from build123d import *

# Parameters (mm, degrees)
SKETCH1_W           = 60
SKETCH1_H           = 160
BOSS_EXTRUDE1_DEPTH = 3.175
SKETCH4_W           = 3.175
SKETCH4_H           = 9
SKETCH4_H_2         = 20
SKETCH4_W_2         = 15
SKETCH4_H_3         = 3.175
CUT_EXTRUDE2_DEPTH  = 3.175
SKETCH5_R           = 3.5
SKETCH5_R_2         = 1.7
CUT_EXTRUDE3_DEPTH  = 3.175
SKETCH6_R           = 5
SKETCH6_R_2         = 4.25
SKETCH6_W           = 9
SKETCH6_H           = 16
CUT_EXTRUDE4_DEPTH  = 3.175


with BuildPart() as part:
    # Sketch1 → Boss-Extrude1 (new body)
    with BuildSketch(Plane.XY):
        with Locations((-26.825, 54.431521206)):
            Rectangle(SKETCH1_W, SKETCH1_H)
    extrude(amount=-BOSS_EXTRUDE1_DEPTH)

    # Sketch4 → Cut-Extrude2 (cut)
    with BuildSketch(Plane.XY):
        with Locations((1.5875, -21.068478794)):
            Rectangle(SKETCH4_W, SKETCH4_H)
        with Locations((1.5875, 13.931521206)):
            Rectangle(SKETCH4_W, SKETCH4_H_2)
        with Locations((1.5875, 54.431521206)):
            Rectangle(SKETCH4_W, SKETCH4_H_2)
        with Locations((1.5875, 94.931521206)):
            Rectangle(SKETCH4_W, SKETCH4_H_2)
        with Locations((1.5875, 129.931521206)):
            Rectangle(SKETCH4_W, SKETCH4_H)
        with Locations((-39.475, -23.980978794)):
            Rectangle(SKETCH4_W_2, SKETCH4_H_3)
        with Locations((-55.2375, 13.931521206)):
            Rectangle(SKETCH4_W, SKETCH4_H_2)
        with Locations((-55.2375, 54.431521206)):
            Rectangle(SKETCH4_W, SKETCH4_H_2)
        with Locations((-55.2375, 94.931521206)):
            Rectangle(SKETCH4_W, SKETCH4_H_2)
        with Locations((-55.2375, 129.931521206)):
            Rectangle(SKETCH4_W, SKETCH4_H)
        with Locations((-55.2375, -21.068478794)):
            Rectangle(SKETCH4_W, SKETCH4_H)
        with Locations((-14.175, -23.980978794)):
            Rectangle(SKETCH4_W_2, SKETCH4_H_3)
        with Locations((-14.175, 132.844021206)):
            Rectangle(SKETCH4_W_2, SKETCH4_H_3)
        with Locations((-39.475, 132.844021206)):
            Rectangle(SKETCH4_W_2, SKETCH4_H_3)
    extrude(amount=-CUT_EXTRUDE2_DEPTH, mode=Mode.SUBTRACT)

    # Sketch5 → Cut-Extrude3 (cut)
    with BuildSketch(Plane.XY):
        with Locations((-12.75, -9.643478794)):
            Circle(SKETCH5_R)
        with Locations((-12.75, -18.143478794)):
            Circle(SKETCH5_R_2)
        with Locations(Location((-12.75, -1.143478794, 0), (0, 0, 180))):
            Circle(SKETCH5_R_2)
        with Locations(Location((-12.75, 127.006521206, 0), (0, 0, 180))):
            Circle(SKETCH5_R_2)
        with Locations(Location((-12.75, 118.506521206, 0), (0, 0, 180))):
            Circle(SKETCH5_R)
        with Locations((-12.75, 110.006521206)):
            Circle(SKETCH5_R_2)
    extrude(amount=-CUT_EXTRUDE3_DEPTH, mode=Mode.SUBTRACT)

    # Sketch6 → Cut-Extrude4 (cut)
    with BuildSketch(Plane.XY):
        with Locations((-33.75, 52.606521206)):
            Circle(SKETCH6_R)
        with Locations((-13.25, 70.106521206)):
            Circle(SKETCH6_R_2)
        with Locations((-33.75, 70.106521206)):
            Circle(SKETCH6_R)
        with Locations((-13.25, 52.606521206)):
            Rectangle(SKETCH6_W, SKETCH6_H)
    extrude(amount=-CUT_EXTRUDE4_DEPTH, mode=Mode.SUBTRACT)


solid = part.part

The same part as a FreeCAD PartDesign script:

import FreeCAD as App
import Part
import Sketcher
from FreeCAD import Vector

doc = App.newDocument("Part")
body = doc.addObject("PartDesign::Body", "Body")

# Sketch on XY plane
sketch1 = doc.addObject("Sketcher::SketchObject", "Sketch")
body.addObject(sketch1)
sketch1.AttachmentSupport = (doc.XY_Plane, [""])
sketch1.MapMode = "FlatFace"
sketch1.addGeometry(Part.LineSegment(Vector(-57, 134, 0), Vector(-57, -26, 0)), False)
sketch1.addGeometry(Part.LineSegment(Vector(-57, -26, 0), Vector(3, -26, 0)), False)
sketch1.addGeometry(Part.LineSegment(Vector(3, -26, 0), Vector(3, 134, 0)), False)
sketch1.addGeometry(Part.LineSegment(Vector(3, 134, 0), Vector(-57, 134, 0)), False)
sketch1.addConstraint(Sketcher.Constraint("Coincident", 0, 2, 1, 1))
sketch1.addConstraint(Sketcher.Constraint("Coincident", 1, 2, 2, 1))
sketch1.addConstraint(Sketcher.Constraint("Coincident", 2, 2, 3, 1))
sketch1.addConstraint(Sketcher.Constraint("Coincident", 3, 2, 0, 1))
sketch1.addConstraint(Sketcher.Constraint("Vertical", 0))
sketch1.addConstraint(Sketcher.Constraint("Horizontal", 1))
sketch1.addConstraint(Sketcher.Constraint("Vertical", 2))
sketch1.addConstraint(Sketcher.Constraint("Horizontal", 3))
sketch1.addConstraint(Sketcher.Constraint("DistanceX", 1, 1, 1, 2, 60.0))
sketch1.addConstraint(Sketcher.Constraint("DistanceY", 0, 2, 0, 1, 160.0))
sketch1.addConstraint(Sketcher.Constraint("DistanceX", 0, 2, -1, 1, 56.825))
sketch1.addConstraint(Sketcher.Constraint("DistanceY", 0, 2, -1, 1, 25.568479))
pad1 = doc.addObject("PartDesign::Pad", "Pad")
body.addObject(pad1)
pad1.Profile = sketch1
pad1.Length = 3.175
pad1.Reversed = True

# Sketch on XY plane
sketch2 = doc.addObject("Sketcher::SketchObject", "Sketch001")
body.addObject(sketch2)
sketch2.AttachmentSupport = (doc.XY_Plane, [""])
sketch2.MapMode = "FlatFace"
sketch2.addGeometry(Part.LineSegment(Vector(0, -16.6, 0), Vector(0, -25.6, 0)), False)
sketch2.addGeometry(Part.LineSegment(Vector(0, -25.6, 0), Vector(3.2, -25.6, 0)), False)
sketch2.addGeometry(Part.LineSegment(Vector(3.2, -25.6, 0), Vector(3.2, -16.6, 0)), False)
sketch2.addGeometry(Part.LineSegment(Vector(3.2, -16.6, 0), Vector(0, -16.6, 0)), False)
sketch2.addGeometry(Part.LineSegment(Vector(0, 23.9, 0), Vector(0, 3.9, 0)), False)
sketch2.addGeometry(Part.LineSegment(Vector(0, 3.9, 0), Vector(3.2, 3.9, 0)), False)
sketch2.addGeometry(Part.LineSegment(Vector(3.2, 3.9, 0), Vector(3.2, 23.9, 0)), False)
sketch2.addGeometry(Part.LineSegment(Vector(3.2, 23.9, 0), Vector(0, 23.9, 0)), False)
sketch2.addGeometry(Part.LineSegment(Vector(0, 64.4, 0), Vector(0, 44.4, 0)), False)
sketch2.addGeometry(Part.LineSegment(Vector(0, 44.4, 0), Vector(3.2, 44.4, 0)), False)
sketch2.addGeometry(Part.LineSegment(Vector(3.2, 44.4, 0), Vector(3.2, 64.4, 0)), False)
sketch2.addGeometry(Part.LineSegment(Vector(3.2, 64.4, 0), Vector(0, 64.4, 0)), False)
sketch2.addGeometry(Part.LineSegment(Vector(0, 104.9, 0), Vector(0, 84.9, 0)), False)
sketch2.addGeometry(Part.LineSegment(Vector(0, 84.9, 0), Vector(3.2, 84.9, 0)), False)
sketch2.addGeometry(Part.LineSegment(Vector(3.2, 84.9, 0), Vector(3.2, 104.9, 0)), False)
sketch2.addGeometry(Part.LineSegment(Vector(3.2, 104.9, 0), Vector(0, 104.9, 0)), False)
sketch2.addGeometry(Part.LineSegment(Vector(0, 134.4, 0), Vector(0, 125.4, 0)), False)
sketch2.addGeometry(Part.LineSegment(Vector(0, 125.4, 0), Vector(3.2, 125.4, 0)), False)
sketch2.addGeometry(Part.LineSegment(Vector(3.2, 125.4, 0), Vector(3.2, 134.4, 0)), False)
sketch2.addGeometry(Part.LineSegment(Vector(3.2, 134.4, 0), Vector(0, 134.4, 0)), False)
sketch2.addGeometry(Part.LineSegment(Vector(-47, -22.4, 0), Vector(-47, -25.6, 0)), False)
sketch2.addGeometry(Part.LineSegment(Vector(-47, -25.6, 0), Vector(-32, -25.6, 0)), False)
sketch2.addGeometry(Part.LineSegment(Vector(-32, -25.6, 0), Vector(-32, -22.4, 0)), False)
sketch2.addGeometry(Part.LineSegment(Vector(-32, -22.4, 0), Vector(-47, -22.4, 0)), False)
sketch2.addGeometry(Part.LineSegment(Vector(-56.8, 23.9, 0), Vector(-56.8, 3.9, 0)), False)
sketch2.addGeometry(Part.LineSegment(Vector(-56.8, 3.9, 0), Vector(-53.6, 3.9, 0)), False)
sketch2.addGeometry(Part.LineSegment(Vector(-53.6, 3.9, 0), Vector(-53.6, 23.9, 0)), False)
sketch2.addGeometry(Part.LineSegment(Vector(-53.6, 23.9, 0), Vector(-56.8, 23.9, 0)), False)
sketch2.addGeometry(Part.LineSegment(Vector(-56.8, 64.4, 0), Vector(-56.8, 44.4, 0)), False)
sketch2.addGeometry(Part.LineSegment(Vector(-56.8, 44.4, 0), Vector(-53.6, 44.4, 0)), False)
sketch2.addGeometry(Part.LineSegment(Vector(-53.6, 44.4, 0), Vector(-53.6, 64.4, 0)), False)
sketch2.addGeometry(Part.LineSegment(Vector(-53.6, 64.4, 0), Vector(-56.8, 64.4, 0)), False)
sketch2.addGeometry(Part.LineSegment(Vector(-56.8, 104.9, 0), Vector(-56.8, 84.9, 0)), False)
sketch2.addGeometry(Part.LineSegment(Vector(-56.8, 84.9, 0), Vector(-53.6, 84.9, 0)), False)
sketch2.addGeometry(Part.LineSegment(Vector(-53.6, 84.9, 0), Vector(-53.6, 104.9, 0)), False)
sketch2.addGeometry(Part.LineSegment(Vector(-53.6, 104.9, 0), Vector(-56.8, 104.9, 0)), False)
sketch2.addGeometry(Part.LineSegment(Vector(-56.8, 134.4, 0), Vector(-56.8, 125.4, 0)), False)
sketch2.addGeometry(Part.LineSegment(Vector(-56.8, 125.4, 0), Vector(-53.6, 125.4, 0)), False)
sketch2.addGeometry(Part.LineSegment(Vector(-53.6, 125.4, 0), Vector(-53.6, 134.4, 0)), False)
sketch2.addGeometry(Part.LineSegment(Vector(-53.6, 134.4, 0), Vector(-56.8, 134.4, 0)), False)
sketch2.addGeometry(Part.LineSegment(Vector(-56.8, -16.6, 0), Vector(-56.8, -25.6, 0)), False)
sketch2.addGeometry(Part.LineSegment(Vector(-56.8, -25.6, 0), Vector(-53.6, -25.6, 0)), False)
sketch2.addGeometry(Part.LineSegment(Vector(-53.6, -25.6, 0), Vector(-53.6, -16.6, 0)), False)
sketch2.addGeometry(Part.LineSegment(Vector(-53.6, -16.6, 0), Vector(-56.8, -16.6, 0)), False)
sketch2.addGeometry(Part.LineSegment(Vector(-21.7, -22.4, 0), Vector(-21.7, -25.6, 0)), False)
sketch2.addGeometry(Part.LineSegment(Vector(-21.7, -25.6, 0), Vector(-6.7, -25.6, 0)), False)
sketch2.addGeometry(Part.LineSegment(Vector(-6.7, -25.6, 0), Vector(-6.7, -22.4, 0)), False)
sketch2.addGeometry(Part.LineSegment(Vector(-6.7, -22.4, 0), Vector(-21.7, -22.4, 0)), False)
sketch2.addGeometry(Part.LineSegment(Vector(-21.7, 134.4, 0), Vector(-21.7, 131.3, 0)), False)
sketch2.addGeometry(Part.LineSegment(Vector(-21.7, 131.3, 0), Vector(-6.7, 131.3, 0)), False)
sketch2.addGeometry(Part.LineSegment(Vector(-6.7, 131.3, 0), Vector(-6.7, 134.4, 0)), False)
sketch2.addGeometry(Part.LineSegment(Vector(-6.7, 134.4, 0), Vector(-21.7, 134.4, 0)), False)
sketch2.addGeometry(Part.LineSegment(Vector(-47, 134.4, 0), Vector(-47, 131.3, 0)), False)
sketch2.addGeometry(Part.LineSegment(Vector(-47, 131.3, 0), Vector(-32, 131.3, 0)), False)
sketch2.addGeometry(Part.LineSegment(Vector(-32, 131.3, 0), Vector(-32, 134.4, 0)), False)
sketch2.addGeometry(Part.LineSegment(Vector(-32, 134.4, 0), Vector(-47, 134.4, 0)), False)
sketch2.addConstraint(Sketcher.Constraint("Coincident", 0, 2, 1, 1))
sketch2.addConstraint(Sketcher.Constraint("Coincident", 1, 2, 2, 1))
sketch2.addConstraint(Sketcher.Constraint("Coincident", 2, 2, 3, 1))
sketch2.addConstraint(Sketcher.Constraint("Coincident", 3, 2, 0, 1))
sketch2.addConstraint(Sketcher.Constraint("Coincident", 4, 2, 5, 1))
sketch2.addConstraint(Sketcher.Constraint("Coincident", 5, 2, 6, 1))
sketch2.addConstraint(Sketcher.Constraint("Coincident", 6, 2, 7, 1))
sketch2.addConstraint(Sketcher.Constraint("Coincident", 7, 2, 4, 1))
sketch2.addConstraint(Sketcher.Constraint("Coincident", 8, 2, 9, 1))
sketch2.addConstraint(Sketcher.Constraint("Coincident", 9, 2, 10, 1))
sketch2.addConstraint(Sketcher.Constraint("Coincident", 10, 2, 11, 1))
sketch2.addConstraint(Sketcher.Constraint("Coincident", 11, 2, 8, 1))
sketch2.addConstraint(Sketcher.Constraint("Coincident", 12, 2, 13, 1))
sketch2.addConstraint(Sketcher.Constraint("Coincident", 13, 2, 14, 1))
sketch2.addConstraint(Sketcher.Constraint("Coincident", 14, 2, 15, 1))
sketch2.addConstraint(Sketcher.Constraint("Coincident", 15, 2, 12, 1))
sketch2.addConstraint(Sketcher.Constraint("Coincident", 16, 2, 17, 1))
sketch2.addConstraint(Sketcher.Constraint("Coincident", 17, 2, 18, 1))
sketch2.addConstraint(Sketcher.Constraint("Coincident", 18, 2, 19, 1))
sketch2.addConstraint(Sketcher.Constraint("Coincident", 19, 2, 16, 1))
sketch2.addConstraint(Sketcher.Constraint("Coincident", 20, 2, 21, 1))
sketch2.addConstraint(Sketcher.Constraint("Coincident", 21, 2, 22, 1))
sketch2.addConstraint(Sketcher.Constraint("Coincident", 22, 2, 23, 1))
sketch2.addConstraint(Sketcher.Constraint("Coincident", 23, 2, 20, 1))
sketch2.addConstraint(Sketcher.Constraint("Coincident", 24, 2, 25, 1))
sketch2.addConstraint(Sketcher.Constraint("Coincident", 25, 2, 26, 1))
sketch2.addConstraint(Sketcher.Constraint("Coincident", 26, 2, 27, 1))
sketch2.addConstraint(Sketcher.Constraint("Coincident", 27, 2, 24, 1))
sketch2.addConstraint(Sketcher.Constraint("Coincident", 28, 2, 29, 1))
sketch2.addConstraint(Sketcher.Constraint("Coincident", 29, 2, 30, 1))
sketch2.addConstraint(Sketcher.Constraint("Coincident", 30, 2, 31, 1))
sketch2.addConstraint(Sketcher.Constraint("Coincident", 31, 2, 28, 1))
sketch2.addConstraint(Sketcher.Constraint("Coincident", 32, 2, 33, 1))
sketch2.addConstraint(Sketcher.Constraint("Coincident", 33, 2, 34, 1))
sketch2.addConstraint(Sketcher.Constraint("Coincident", 34, 2, 35, 1))
sketch2.addConstraint(Sketcher.Constraint("Coincident", 35, 2, 32, 1))
sketch2.addConstraint(Sketcher.Constraint("Coincident", 36, 2, 37, 1))
sketch2.addConstraint(Sketcher.Constraint("Coincident", 37, 2, 38, 1))
sketch2.addConstraint(Sketcher.Constraint("Coincident", 38, 2, 39, 1))
sketch2.addConstraint(Sketcher.Constraint("Coincident", 39, 2, 36, 1))
sketch2.addConstraint(Sketcher.Constraint("Coincident", 40, 2, 41, 1))
sketch2.addConstraint(Sketcher.Constraint("Coincident", 41, 2, 42, 1))
sketch2.addConstraint(Sketcher.Constraint("Coincident", 42, 2, 43, 1))
sketch2.addConstraint(Sketcher.Constraint("Coincident", 43, 2, 40, 1))
sketch2.addConstraint(Sketcher.Constraint("Coincident", 44, 2, 45, 1))
sketch2.addConstraint(Sketcher.Constraint("Coincident", 45, 2, 46, 1))
sketch2.addConstraint(Sketcher.Constraint("Coincident", 46, 2, 47, 1))
sketch2.addConstraint(Sketcher.Constraint("Coincident", 47, 2, 44, 1))
sketch2.addConstraint(Sketcher.Constraint("Coincident", 48, 2, 49, 1))
sketch2.addConstraint(Sketcher.Constraint("Coincident", 49, 2, 50, 1))
sketch2.addConstraint(Sketcher.Constraint("Coincident", 50, 2, 51, 1))
sketch2.addConstraint(Sketcher.Constraint("Coincident", 51, 2, 48, 1))
sketch2.addConstraint(Sketcher.Constraint("Coincident", 52, 2, 53, 1))
sketch2.addConstraint(Sketcher.Constraint("Coincident", 53, 2, 54, 1))
sketch2.addConstraint(Sketcher.Constraint("Coincident", 54, 2, 55, 1))
sketch2.addConstraint(Sketcher.Constraint("Coincident", 55, 2, 52, 1))
sketch2.addConstraint(Sketcher.Constraint("Vertical", 0))
sketch2.addConstraint(Sketcher.Constraint("Horizontal", 1))
sketch2.addConstraint(Sketcher.Constraint("Vertical", 2))
sketch2.addConstraint(Sketcher.Constraint("Horizontal", 3))
sketch2.addConstraint(Sketcher.Constraint("Vertical", 4))
sketch2.addConstraint(Sketcher.Constraint("Horizontal", 5))
sketch2.addConstraint(Sketcher.Constraint("Vertical", 6))
sketch2.addConstraint(Sketcher.Constraint("Horizontal", 7))
sketch2.addConstraint(Sketcher.Constraint("Vertical", 8))
sketch2.addConstraint(Sketcher.Constraint("Horizontal", 9))
sketch2.addConstraint(Sketcher.Constraint("Vertical", 10))
sketch2.addConstraint(Sketcher.Constraint("Horizontal", 11))
sketch2.addConstraint(Sketcher.Constraint("Vertical", 12))
sketch2.addConstraint(Sketcher.Constraint("Horizontal", 13))
sketch2.addConstraint(Sketcher.Constraint("Vertical", 14))
sketch2.addConstraint(Sketcher.Constraint("Horizontal", 15))
sketch2.addConstraint(Sketcher.Constraint("Vertical", 16))
sketch2.addConstraint(Sketcher.Constraint("Horizontal", 17))
sketch2.addConstraint(Sketcher.Constraint("Vertical", 18))
sketch2.addConstraint(Sketcher.Constraint("Horizontal", 19))
sketch2.addConstraint(Sketcher.Constraint("Vertical", 20))
sketch2.addConstraint(Sketcher.Constraint("Horizontal", 21))
sketch2.addConstraint(Sketcher.Constraint("Vertical", 22))
sketch2.addConstraint(Sketcher.Constraint("Horizontal", 23))
sketch2.addConstraint(Sketcher.Constraint("Vertical", 24))
sketch2.addConstraint(Sketcher.Constraint("Horizontal", 25))
sketch2.addConstraint(Sketcher.Constraint("Vertical", 26))
sketch2.addConstraint(Sketcher.Constraint("Horizontal", 27))
sketch2.addConstraint(Sketcher.Constraint("Vertical", 28))
sketch2.addConstraint(Sketcher.Constraint("Horizontal", 29))
sketch2.addConstraint(Sketcher.Constraint("Vertical", 30))
sketch2.addConstraint(Sketcher.Constraint("Horizontal", 31))
sketch2.addConstraint(Sketcher.Constraint("Vertical", 32))
sketch2.addConstraint(Sketcher.Constraint("Horizontal", 33))
sketch2.addConstraint(Sketcher.Constraint("Vertical", 34))
sketch2.addConstraint(Sketcher.Constraint("Horizontal", 35))
sketch2.addConstraint(Sketcher.Constraint("Vertical", 36))
sketch2.addConstraint(Sketcher.Constraint("Horizontal", 37))
sketch2.addConstraint(Sketcher.Constraint("Vertical", 38))
sketch2.addConstraint(Sketcher.Constraint("Horizontal", 39))
sketch2.addConstraint(Sketcher.Constraint("Vertical", 40))
sketch2.addConstraint(Sketcher.Constraint("Horizontal", 41))
sketch2.addConstraint(Sketcher.Constraint("Vertical", 42))
sketch2.addConstraint(Sketcher.Constraint("Horizontal", 43))
sketch2.addConstraint(Sketcher.Constraint("Vertical", 44))
sketch2.addConstraint(Sketcher.Constraint("Horizontal", 45))
sketch2.addConstraint(Sketcher.Constraint("Vertical", 46))
sketch2.addConstraint(Sketcher.Constraint("Horizontal", 47))
sketch2.addConstraint(Sketcher.Constraint("Vertical", 48))
sketch2.addConstraint(Sketcher.Constraint("Horizontal", 49))
sketch2.addConstraint(Sketcher.Constraint("Vertical", 50))
sketch2.addConstraint(Sketcher.Constraint("Horizontal", 51))
sketch2.addConstraint(Sketcher.Constraint("Vertical", 52))
sketch2.addConstraint(Sketcher.Constraint("Horizontal", 53))
sketch2.addConstraint(Sketcher.Constraint("Vertical", 54))
sketch2.addConstraint(Sketcher.Constraint("Horizontal", 55))
sketch2.addConstraint(Sketcher.Constraint("PointOnObject", 0, 2, -2))
sketch2.addConstraint(Sketcher.Constraint("PointOnObject", 4, 2, -2))
sketch2.addConstraint(Sketcher.Constraint("PointOnObject", 8, 2, -2))
sketch2.addConstraint(Sketcher.Constraint("PointOnObject", 12, 2, -2))
sketch2.addConstraint(Sketcher.Constraint("PointOnObject", 16, 2, -2))
sketch2.addConstraint(Sketcher.Constraint("Horizontal", 1, 2, 20, 2))
sketch2.addConstraint(Sketcher.Constraint("Horizontal", 5, 2, 24, 2))
sketch2.addConstraint(Sketcher.Constraint("Horizontal", 7, 2, 26, 2))
sketch2.addConstraint(Sketcher.Constraint("Horizontal", 9, 2, 28, 2))
sketch2.addConstraint(Sketcher.Constraint("Horizontal", 11, 2, 30, 2))
sketch2.addConstraint(Sketcher.Constraint("Horizontal", 13, 2, 32, 2))
sketch2.addConstraint(Sketcher.Constraint("Horizontal", 15, 2, 34, 2))
sketch2.addConstraint(Sketcher.Constraint("Horizontal", 17, 2, 36, 2))
sketch2.addConstraint(Sketcher.Constraint("Horizontal", 19, 2, 38, 2))
sketch2.addConstraint(Sketcher.Constraint("Horizontal", 21, 2, 40, 2))
sketch2.addConstraint(Sketcher.Constraint("Horizontal", 3, 2, 42, 2))
sketch2.addConstraint(Sketcher.Constraint("Horizontal", 41, 2, 44, 2))
sketch2.addConstraint(Sketcher.Constraint("Horizontal", 23, 2, 46, 2))
sketch2.addConstraint(Sketcher.Constraint("Horizontal", 39, 2, 50, 2))
sketch2.addConstraint(Sketcher.Constraint("Horizontal", 49, 2, 52, 2))
sketch2.addConstraint(Sketcher.Constraint("Horizontal", 51, 2, 54, 2))
sketch2.addConstraint(Sketcher.Constraint("Vertical", 2, 2, 5, 2))
sketch2.addConstraint(Sketcher.Constraint("Vertical", 6, 2, 9, 2))
sketch2.addConstraint(Sketcher.Constraint("Vertical", 10, 2, 13, 2))
sketch2.addConstraint(Sketcher.Constraint("Vertical", 14, 2, 17, 2))
sketch2.addConstraint(Sketcher.Constraint("Vertical", 27, 2, 28, 2))
sketch2.addConstraint(Sketcher.Constraint("Vertical", 26, 2, 29, 2))
sketch2.addConstraint(Sketcher.Constraint("Vertical", 31, 2, 32, 2))
sketch2.addConstraint(Sketcher.Constraint("Vertical", 30, 2, 33, 2))
sketch2.addConstraint(Sketcher.Constraint("Vertical", 35, 2, 36, 2))
sketch2.addConstraint(Sketcher.Constraint("Vertical", 34, 2, 37, 2))
sketch2.addConstraint(Sketcher.Constraint("Vertical", 39, 2, 40, 2))
sketch2.addConstraint(Sketcher.Constraint("Vertical", 38, 2, 41, 2))
sketch2.addConstraint(Sketcher.Constraint("Vertical", 47, 2, 48, 2))
sketch2.addConstraint(Sketcher.Constraint("Vertical", 46, 2, 49, 2))
sketch2.addConstraint(Sketcher.Constraint("Vertical", 23, 2, 52, 2))
sketch2.addConstraint(Sketcher.Constraint("Vertical", 22, 2, 53, 2))
sketch2.addConstraint(Sketcher.Constraint("Equal", 19, 25))
sketch2.addConstraint(Sketcher.Constraint("Equal", 23, 45))
sketch2.addConstraint(Sketcher.Constraint("Equal", 6, 8))
sketch2.addConstraint(Sketcher.Constraint("Equal", 10, 12))
sketch2.addConstraint(Sketcher.Constraint("Equal", 2, 16))
sketch2.addConstraint(Sketcher.Constraint("Equal", 43, 20))
sketch2.addConstraint(Sketcher.Constraint("Equal", 46, 48))
sketch2.addConstraint(Sketcher.Constraint("DistanceX", 21, 1, 21, 2, 15.0))
sketch2.addConstraint(Sketcher.Constraint("DistanceY", 0, 2, 0, 1, 9.0))
sketch2.addConstraint(Sketcher.Constraint("DistanceY", 4, 2, 4, 1, 20.0))
sketch2.addConstraint(Sketcher.Constraint("DistanceY", 3, 2, 8, 2, 61.0))
sketch2.addConstraint(Sketcher.Constraint("DistanceY", 7, 2, 12, 2, 61.0))
sketch2.addConstraint(Sketcher.Constraint("DistanceY", 11, 2, 16, 2, 61.0))
sketch2.addConstraint(Sketcher.Constraint("DistanceY", 3, 2, 4, 2, 20.5))
sketch2.addConstraint(Sketcher.Constraint("DistanceX", 21, 2, 44, 2, 10.3))
sketch2.addConstraint(Sketcher.Constraint("DistanceX", 1, 1, 1, 2, 3.175))
sketch2.addConstraint(Sketcher.Constraint("DistanceX", 25, 2, -1, 1, 53.65))
sketch2.addConstraint(Sketcher.Constraint("DistanceX", 20, 2, 1, 2, 50.15))
sketch2.addConstraint(Sketcher.Constraint("DistanceY", 0, 2, -1, 1, 25.568479))
pocket1 = doc.addObject("PartDesign::Pocket", "Pocket")
body.addObject(pocket1)
pocket1.Profile = sketch2
pocket1.Length = 3.175

# Sketch on XY plane
sketch3 = doc.addObject("Sketcher::SketchObject", "Sketch002")
body.addObject(sketch3)
sketch3.AttachmentSupport = (doc.XY_Plane, [""])
sketch3.MapMode = "FlatFace"
sketch3.addGeometry(Part.Circle(Vector(-12.8, -9.6, 0), Vector(0, 0, 1), 3.5), False)
sketch3.addGeometry(Part.Circle(Vector(-12.8, -18.1, 0), Vector(0, 0, 1), 1.7), False)
sketch3.addGeometry(Part.Circle(Vector(-12.8, -1.1, 0), Vector(0, 0, 1), 1.7), False)
sketch3.addGeometry(Part.Circle(Vector(-12.8, 127, 0), Vector(0, 0, 1), 1.7), False)
sketch3.addGeometry(Part.Circle(Vector(-12.8, 118.5, 0), Vector(0, 0, 1), 3.5), False)
sketch3.addGeometry(Part.Circle(Vector(-12.8, 110, 0), Vector(0, 0, 1), 1.7), False)
sketch3.addConstraint(Sketcher.Constraint("Equal", 1, 2))
sketch3.addConstraint(Sketcher.Constraint("Equal", 2, 3))
sketch3.addConstraint(Sketcher.Constraint("Equal", 0, 4))
sketch3.addConstraint(Sketcher.Constraint("Equal", 3, 5))
sketch3.addConstraint(Sketcher.Constraint("Vertical", 0, 3, 1, 3))
sketch3.addConstraint(Sketcher.Constraint("Vertical", 1, 3, 2, 3))
sketch3.addConstraint(Sketcher.Constraint("Vertical", 2, 3, 3, 3))
sketch3.addConstraint(Sketcher.Constraint("Vertical", 3, 3, 4, 3))
sketch3.addConstraint(Sketcher.Constraint("Vertical", 4, 3, 5, 3))
sketch3.addConstraint(Sketcher.Constraint("Diameter", 0, 7.0))
sketch3.addConstraint(Sketcher.Constraint("Diameter", 1, 3.4))
sketch3.addConstraint(Sketcher.Constraint("DistanceY", 1, 3, 2, 3, 17.0))
sketch3.addConstraint(Sketcher.Constraint("DistanceY", 5, 3, 3, 3, 17.0))
sketch3.addConstraint(Sketcher.Constraint("DistanceY", 1, 3, 0, 3, 8.5))
sketch3.addConstraint(Sketcher.Constraint("DistanceY", 4, 3, 3, 3, 8.5))
sketch3.addConstraint(Sketcher.Constraint("DistanceX", 0, 3, -1, 1, 12.75))
sketch3.addConstraint(Sketcher.Constraint("DistanceY", 2, 3, 3, 3, 128.15))
sketch3.addConstraint(Sketcher.Constraint("DistanceY", 0, 3, -1, 1, 9.643479))
pocket2 = doc.addObject("PartDesign::Pocket", "Pocket001")
body.addObject(pocket2)
pocket2.Profile = sketch3
pocket2.Length = 3.175

# Sketch on XY plane
sketch4 = doc.addObject("Sketcher::SketchObject", "Sketch003")
body.addObject(sketch4)
sketch4.AttachmentSupport = (doc.XY_Plane, [""])
sketch4.MapMode = "FlatFace"
sketch4.addGeometry(Part.Circle(Vector(-33.8, 52.6, 0), Vector(0, 0, 1), 5), False)
sketch4.addGeometry(Part.Circle(Vector(-13.2, 70.1, 0), Vector(0, 0, 1), 4.2), False)
sketch4.addGeometry(Part.Circle(Vector(-33.8, 70.1, 0), Vector(0, 0, 1), 5), False)
sketch4.addGeometry(Part.LineSegment(Vector(-17.8, 60.6, 0), Vector(-17.8, 44.6, 0)), False)
sketch4.addGeometry(Part.LineSegment(Vector(-17.8, 44.6, 0), Vector(-8.8, 44.6, 0)), False)
sketch4.addGeometry(Part.LineSegment(Vector(-8.8, 44.6, 0), Vector(-8.8, 60.6, 0)), False)
sketch4.addGeometry(Part.LineSegment(Vector(-8.8, 60.6, 0), Vector(-17.8, 60.6, 0)), False)
sketch4.addConstraint(Sketcher.Constraint("Coincident", 3, 2, 4, 1))
sketch4.addConstraint(Sketcher.Constraint("Coincident", 4, 2, 5, 1))
sketch4.addConstraint(Sketcher.Constraint("Coincident", 5, 2, 6, 1))
sketch4.addConstraint(Sketcher.Constraint("Coincident", 6, 2, 3, 1))
sketch4.addConstraint(Sketcher.Constraint("Vertical", 3))
sketch4.addConstraint(Sketcher.Constraint("Horizontal", 4))
sketch4.addConstraint(Sketcher.Constraint("Vertical", 5))
sketch4.addConstraint(Sketcher.Constraint("Horizontal", 6))
sketch4.addConstraint(Sketcher.Constraint("Equal", 0, 2))
sketch4.addConstraint(Sketcher.Constraint("Horizontal", 1, 3, 2, 3))
sketch4.addConstraint(Sketcher.Constraint("Vertical", 0, 3, 2, 3))
sketch4.addConstraint(Sketcher.Constraint("Diameter", 0, 10.0))
sketch4.addConstraint(Sketcher.Constraint("Diameter", 1, 8.5))
sketch4.addConstraint(Sketcher.Constraint("DistanceX", 4, 1, 4, 2, 9.0))
sketch4.addConstraint(Sketcher.Constraint("DistanceY", 3, 2, 3, 1, 16.0))
sketch4.addConstraint(Sketcher.Constraint("DistanceX", 0, 3, 3, 2, 16.0))
sketch4.addConstraint(Sketcher.Constraint("DistanceY", 3, 2, 0, 3, 8.0))
sketch4.addConstraint(Sketcher.Constraint("DistanceX", 0, 3, 1, 3, 20.5))
sketch4.addConstraint(Sketcher.Constraint("DistanceY", 0, 3, 1, 3, 17.5))
sketch4.addConstraint(Sketcher.Constraint("DistanceX", 0, 3, -1, 1, 33.75))
sketch4.addConstraint(Sketcher.Constraint("DistanceY", -1, 1, 0, 3, 52.606521))
pocket3 = doc.addObject("PartDesign::Pocket", "Pocket002")
body.addObject(pocket3)
pocket3.Profile = sketch4
pocket3.Length = 3.175

doc.recompute()
